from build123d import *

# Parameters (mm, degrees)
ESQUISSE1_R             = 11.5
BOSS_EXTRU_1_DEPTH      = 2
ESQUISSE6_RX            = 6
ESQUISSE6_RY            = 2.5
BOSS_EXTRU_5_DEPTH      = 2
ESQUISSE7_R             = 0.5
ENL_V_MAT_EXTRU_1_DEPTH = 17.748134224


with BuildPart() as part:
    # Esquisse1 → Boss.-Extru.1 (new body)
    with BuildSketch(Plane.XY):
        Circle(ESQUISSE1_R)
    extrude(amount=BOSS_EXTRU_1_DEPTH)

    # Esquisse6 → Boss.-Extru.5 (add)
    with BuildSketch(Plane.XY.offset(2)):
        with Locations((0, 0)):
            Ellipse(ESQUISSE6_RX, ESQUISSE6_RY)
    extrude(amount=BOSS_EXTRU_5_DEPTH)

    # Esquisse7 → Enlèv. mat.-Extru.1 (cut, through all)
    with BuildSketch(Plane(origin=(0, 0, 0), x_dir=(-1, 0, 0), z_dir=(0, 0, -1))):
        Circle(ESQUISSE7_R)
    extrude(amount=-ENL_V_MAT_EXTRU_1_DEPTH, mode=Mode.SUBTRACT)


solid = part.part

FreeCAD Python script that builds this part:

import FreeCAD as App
import Part
import Sketcher

V = App.Vector
Q = App.Units.Quantity

doc = App.newDocument("Part")
body = doc.addObject("PartDesign::Body", "Body")

sketch1 = doc.addObject("Sketcher::SketchObject", "Sketch")
body.addObject(sketch1)
sketch1.AttachmentSupport = (doc.XY_Plane, [""])
sketch1.MapMode = "FlatFace"
sketch1.addGeometry(Part.Circle(V(0, 0, 0), V(0, 0, 1), 12), False)
sketch1.addConstraint([
    Sketcher.Constraint("Coincident", 0, 3, -1, 1),
    Sketcher.Constraint("Diameter", 0, Q("23 mm")),
])
pad1 = doc.addObject("PartDesign::Pad", "Pad")
body.addObject(pad1)
pad1.Profile = sketch1
pad1.Length = 2

sketch2 = doc.addObject("Sketcher::SketchObject", "Sketch001")
body.addObject(sketch2)
sketch2.AttachmentSupport = (doc.XY_Plane, [""])
sketch2.MapMode = "FlatFace"
sketch2.AttachmentOffset = App.Placement(V(0, 0, 2), App.Rotation())
sketch2.addGeometry(Part.Ellipse(V(6, 0, 0), V(0, 2.5, 0), V(0, 0, 0)), False)
sketch2.addConstraint(Sketcher.Constraint("Block", 0))
pad2 = doc.addObject("PartDesign::Pad", "Pad001")
body.addObject(pad2)
pad2.Profile = sketch2
pad2.Length = 2

sketch3 = doc.addObject("Sketcher::SketchObject", "Sketch002")
body.addObject(sketch3)
sketch3.AttachmentSupport = (doc.XY_Plane, [""])
sketch3.MapMode = "FlatFace"
sketch3.addGeometry(Part.Circle(V(0, 0, 0), V(0, 0, 1), 0.5), False)
sketch3.addConstraint([
    Sketcher.Constraint("Coincident", 0, 3, -1, 1),
    Sketcher.Constraint("Diameter", 0, Q("1 mm")),
])
pocket1 = doc.addObject("PartDesign::Pocket", "Pocket")
body.addObject(pocket1)
pocket1.Profile = sketch3
pocket1.Type = "ThroughAll"
pocket1.Reversed = True

doc.recompute()
